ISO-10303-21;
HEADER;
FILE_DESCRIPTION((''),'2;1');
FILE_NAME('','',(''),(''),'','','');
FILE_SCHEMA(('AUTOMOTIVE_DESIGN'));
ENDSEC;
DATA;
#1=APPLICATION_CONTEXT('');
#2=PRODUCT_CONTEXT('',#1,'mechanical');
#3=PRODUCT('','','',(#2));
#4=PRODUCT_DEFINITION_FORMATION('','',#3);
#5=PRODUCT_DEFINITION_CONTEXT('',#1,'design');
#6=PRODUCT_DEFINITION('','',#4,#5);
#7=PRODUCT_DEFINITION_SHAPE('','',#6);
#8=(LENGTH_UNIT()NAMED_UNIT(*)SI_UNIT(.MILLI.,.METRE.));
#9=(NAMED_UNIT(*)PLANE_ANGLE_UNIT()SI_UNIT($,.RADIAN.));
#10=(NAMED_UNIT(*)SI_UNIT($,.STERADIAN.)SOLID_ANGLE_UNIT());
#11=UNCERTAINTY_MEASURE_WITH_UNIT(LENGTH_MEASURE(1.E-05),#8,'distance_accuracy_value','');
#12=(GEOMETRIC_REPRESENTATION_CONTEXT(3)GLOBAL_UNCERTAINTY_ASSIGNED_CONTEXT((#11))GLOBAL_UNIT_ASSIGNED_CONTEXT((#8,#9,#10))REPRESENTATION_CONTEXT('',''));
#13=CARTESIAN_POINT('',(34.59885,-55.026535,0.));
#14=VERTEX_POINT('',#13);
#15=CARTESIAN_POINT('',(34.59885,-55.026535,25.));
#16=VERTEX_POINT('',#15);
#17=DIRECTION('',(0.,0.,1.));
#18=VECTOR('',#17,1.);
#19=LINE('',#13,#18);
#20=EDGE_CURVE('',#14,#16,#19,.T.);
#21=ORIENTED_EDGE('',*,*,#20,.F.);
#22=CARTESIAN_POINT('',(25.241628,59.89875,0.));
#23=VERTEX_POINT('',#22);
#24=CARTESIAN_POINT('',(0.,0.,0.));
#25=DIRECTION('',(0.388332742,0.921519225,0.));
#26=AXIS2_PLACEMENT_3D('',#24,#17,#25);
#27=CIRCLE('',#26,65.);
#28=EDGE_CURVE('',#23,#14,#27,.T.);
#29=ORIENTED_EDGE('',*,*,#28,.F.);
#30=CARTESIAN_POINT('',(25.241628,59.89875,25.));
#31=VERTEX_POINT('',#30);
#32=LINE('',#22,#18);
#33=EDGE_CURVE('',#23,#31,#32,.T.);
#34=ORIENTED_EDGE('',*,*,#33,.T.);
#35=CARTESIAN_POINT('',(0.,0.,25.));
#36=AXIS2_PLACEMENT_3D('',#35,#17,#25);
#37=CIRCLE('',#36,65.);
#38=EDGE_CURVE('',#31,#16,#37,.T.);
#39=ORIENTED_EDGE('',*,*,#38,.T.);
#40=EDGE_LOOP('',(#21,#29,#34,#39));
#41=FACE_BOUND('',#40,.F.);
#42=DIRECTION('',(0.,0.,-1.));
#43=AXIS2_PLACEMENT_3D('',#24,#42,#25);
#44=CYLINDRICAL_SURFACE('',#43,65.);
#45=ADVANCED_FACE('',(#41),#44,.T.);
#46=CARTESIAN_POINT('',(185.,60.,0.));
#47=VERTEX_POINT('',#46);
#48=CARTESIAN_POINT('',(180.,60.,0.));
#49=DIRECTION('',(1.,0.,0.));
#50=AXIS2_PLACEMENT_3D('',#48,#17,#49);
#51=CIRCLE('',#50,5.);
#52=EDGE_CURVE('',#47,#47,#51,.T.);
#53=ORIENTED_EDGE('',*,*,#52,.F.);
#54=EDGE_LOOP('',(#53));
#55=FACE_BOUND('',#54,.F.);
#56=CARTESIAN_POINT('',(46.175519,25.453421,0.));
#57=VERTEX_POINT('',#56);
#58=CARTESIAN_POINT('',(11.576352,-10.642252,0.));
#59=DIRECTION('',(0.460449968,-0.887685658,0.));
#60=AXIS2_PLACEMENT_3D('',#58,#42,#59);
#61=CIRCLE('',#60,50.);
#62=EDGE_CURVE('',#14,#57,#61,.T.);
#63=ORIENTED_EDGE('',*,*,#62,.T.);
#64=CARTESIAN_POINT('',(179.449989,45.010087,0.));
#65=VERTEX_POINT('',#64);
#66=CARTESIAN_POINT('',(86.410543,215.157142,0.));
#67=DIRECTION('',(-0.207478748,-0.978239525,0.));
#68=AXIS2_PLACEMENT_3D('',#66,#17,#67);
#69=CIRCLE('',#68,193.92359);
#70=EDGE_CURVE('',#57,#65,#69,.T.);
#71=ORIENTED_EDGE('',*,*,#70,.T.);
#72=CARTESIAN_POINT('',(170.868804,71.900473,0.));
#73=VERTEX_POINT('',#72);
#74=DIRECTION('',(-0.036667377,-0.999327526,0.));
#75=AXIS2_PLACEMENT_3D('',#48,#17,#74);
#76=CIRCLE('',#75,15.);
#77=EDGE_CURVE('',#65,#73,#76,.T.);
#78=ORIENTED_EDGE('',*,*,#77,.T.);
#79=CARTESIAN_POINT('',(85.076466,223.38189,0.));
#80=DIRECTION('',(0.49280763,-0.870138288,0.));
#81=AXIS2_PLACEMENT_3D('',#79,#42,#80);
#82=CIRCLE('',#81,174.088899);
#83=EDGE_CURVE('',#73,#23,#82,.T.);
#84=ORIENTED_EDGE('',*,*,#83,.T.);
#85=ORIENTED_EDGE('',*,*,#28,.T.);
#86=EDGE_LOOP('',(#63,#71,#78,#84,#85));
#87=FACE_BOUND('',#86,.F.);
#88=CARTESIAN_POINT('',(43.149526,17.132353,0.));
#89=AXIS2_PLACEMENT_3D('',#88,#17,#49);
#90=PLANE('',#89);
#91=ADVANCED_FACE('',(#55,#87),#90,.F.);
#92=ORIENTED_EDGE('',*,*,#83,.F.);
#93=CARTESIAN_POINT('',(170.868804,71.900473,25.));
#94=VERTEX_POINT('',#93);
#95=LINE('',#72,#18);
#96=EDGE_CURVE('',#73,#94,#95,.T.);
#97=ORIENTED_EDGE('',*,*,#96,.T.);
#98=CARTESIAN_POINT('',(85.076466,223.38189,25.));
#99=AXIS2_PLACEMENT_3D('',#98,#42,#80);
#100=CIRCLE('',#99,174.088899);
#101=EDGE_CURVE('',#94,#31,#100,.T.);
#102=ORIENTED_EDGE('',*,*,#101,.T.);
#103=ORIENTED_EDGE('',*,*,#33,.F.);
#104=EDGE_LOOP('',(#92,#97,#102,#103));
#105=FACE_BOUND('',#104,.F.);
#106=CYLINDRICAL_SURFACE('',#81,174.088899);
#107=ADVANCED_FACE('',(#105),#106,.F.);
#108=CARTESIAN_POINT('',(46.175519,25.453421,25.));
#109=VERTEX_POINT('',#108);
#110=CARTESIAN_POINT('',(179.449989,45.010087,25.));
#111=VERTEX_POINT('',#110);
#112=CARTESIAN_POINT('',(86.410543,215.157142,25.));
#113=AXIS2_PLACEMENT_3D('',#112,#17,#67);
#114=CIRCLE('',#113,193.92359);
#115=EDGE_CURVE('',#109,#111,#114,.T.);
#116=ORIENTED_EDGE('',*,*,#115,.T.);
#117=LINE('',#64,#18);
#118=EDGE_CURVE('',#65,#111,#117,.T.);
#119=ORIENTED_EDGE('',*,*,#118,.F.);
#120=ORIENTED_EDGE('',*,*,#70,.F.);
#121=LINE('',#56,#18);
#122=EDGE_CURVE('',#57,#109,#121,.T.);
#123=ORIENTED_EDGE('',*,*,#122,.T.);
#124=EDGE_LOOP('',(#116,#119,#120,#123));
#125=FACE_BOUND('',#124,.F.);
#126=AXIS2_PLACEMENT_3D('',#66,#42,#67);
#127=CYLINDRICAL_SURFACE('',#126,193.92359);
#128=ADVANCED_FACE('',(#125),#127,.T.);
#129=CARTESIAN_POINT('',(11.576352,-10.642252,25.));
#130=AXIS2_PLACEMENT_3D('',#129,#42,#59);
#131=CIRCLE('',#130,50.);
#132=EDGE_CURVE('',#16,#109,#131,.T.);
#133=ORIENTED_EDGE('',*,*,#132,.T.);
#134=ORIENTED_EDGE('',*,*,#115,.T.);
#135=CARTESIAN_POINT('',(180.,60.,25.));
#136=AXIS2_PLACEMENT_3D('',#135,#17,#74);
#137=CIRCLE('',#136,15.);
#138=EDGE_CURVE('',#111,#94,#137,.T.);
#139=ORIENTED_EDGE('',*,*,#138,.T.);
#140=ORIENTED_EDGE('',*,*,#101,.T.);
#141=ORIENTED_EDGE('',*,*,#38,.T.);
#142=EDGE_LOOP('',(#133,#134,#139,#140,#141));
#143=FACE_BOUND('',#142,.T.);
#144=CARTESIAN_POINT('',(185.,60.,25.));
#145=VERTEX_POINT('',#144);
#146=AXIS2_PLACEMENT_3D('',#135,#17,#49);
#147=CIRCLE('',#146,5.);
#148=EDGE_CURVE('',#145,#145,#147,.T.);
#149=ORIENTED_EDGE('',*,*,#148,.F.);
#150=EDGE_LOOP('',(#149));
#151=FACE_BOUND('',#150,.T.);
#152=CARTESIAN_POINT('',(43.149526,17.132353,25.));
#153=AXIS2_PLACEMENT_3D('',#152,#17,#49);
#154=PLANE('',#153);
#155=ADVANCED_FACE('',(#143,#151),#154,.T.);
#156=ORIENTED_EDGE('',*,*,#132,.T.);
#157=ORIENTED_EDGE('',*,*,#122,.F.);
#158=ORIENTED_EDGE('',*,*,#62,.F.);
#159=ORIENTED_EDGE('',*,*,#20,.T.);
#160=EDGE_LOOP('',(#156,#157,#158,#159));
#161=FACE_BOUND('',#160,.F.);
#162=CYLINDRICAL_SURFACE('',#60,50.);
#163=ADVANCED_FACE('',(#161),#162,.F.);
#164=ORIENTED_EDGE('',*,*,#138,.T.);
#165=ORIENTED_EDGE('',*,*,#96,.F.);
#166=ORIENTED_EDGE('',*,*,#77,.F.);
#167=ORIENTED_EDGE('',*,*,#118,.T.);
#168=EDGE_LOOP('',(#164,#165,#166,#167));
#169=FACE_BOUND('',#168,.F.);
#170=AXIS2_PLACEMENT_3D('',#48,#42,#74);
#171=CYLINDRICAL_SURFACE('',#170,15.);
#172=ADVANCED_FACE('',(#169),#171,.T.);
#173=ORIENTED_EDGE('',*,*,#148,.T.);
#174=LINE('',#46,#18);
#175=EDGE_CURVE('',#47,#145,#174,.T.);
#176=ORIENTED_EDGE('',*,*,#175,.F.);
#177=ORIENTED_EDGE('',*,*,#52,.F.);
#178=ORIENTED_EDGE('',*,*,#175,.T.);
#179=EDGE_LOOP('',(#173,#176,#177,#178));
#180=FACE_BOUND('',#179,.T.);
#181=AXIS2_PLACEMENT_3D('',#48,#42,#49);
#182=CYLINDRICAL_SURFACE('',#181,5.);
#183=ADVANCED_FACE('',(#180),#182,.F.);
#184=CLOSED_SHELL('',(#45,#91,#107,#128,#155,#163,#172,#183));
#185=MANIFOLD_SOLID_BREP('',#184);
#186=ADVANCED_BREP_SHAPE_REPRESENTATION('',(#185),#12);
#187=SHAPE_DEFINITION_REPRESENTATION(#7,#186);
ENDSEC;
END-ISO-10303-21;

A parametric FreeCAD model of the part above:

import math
import FreeCAD as App
import Part
import Sketcher
from FreeCAD import Vector

doc = App.newDocument("Part")
body = doc.addObject("PartDesign::Body", "Body")

# Sketch on XY plane
sketch1 = doc.addObject("Sketcher::SketchObject", "Sketch")
body.addObject(sketch1)
sketch1.AttachmentSupport = (doc.XY_Plane, [""])
sketch1.MapMode = "FlatFace"
sketch1.addGeometry(Part.ArcOfCircle(Part.Circle(Vector(85, 223, 0), Vector(0, 0, 1), 174), math.radians(-110), math.radians(-60)), False)
sketch1.addGeometry(Part.ArcOfCircle(Part.Circle(Vector(0, 0, 0), Vector(0, 0, 1), 65), math.radians(67), math.radians(302)), False)
sketch1.addGeometry(Part.ArcOfCircle(Part.Circle(Vector(12, -11, 0), Vector(0, 0, 1), 50), math.radians(46), math.radians(297)), False)
sketch1.addGeometry(Part.ArcOfCircle(Part.Circle(Vector(86, 215, 0), Vector(0, 0, 1), 194), math.radians(-102), math.radians(-61)), False)
sketch1.addGeometry(Part.ArcOfCircle(Part.Circle(Vector(180, 60, 0), Vector(0, 0, 1), 15), math.radians(-92), math.radians(127)), False)
sketch1.addGeometry(Part.Circle(Vector(180, 60, 0), Vector(0, 0, 1), 5), False)
sketch1.addConstraint(Sketcher.Constraint("Coincident", 0, 1, 1, 1))
sketch1.addConstraint(Sketcher.Constraint("Coincident", 1, 2, 2, 2))
sketch1.addConstraint(Sketcher.Constraint("Coincident", 2, 1, 3, 1))
sketch1.addConstraint(Sketcher.Constraint("Coincident", 3, 2, 4, 1))
sketch1.addConstraint(Sketcher.Constraint("Coincident", 4, 2, 0, 2))
sketch1.addConstraint(Sketcher.Constraint("Coincident", 1, 3, -1, 1))
sketch1.addConstraint(Sketcher.Constraint("Coincident", 5, 3, 4, 3))
sketch1.addConstraint(Sketcher.Constraint("Diameter", 5, 10.0))
sketch1.addConstraint(Sketcher.Constraint("Radius", 1, 65.0))
sketch1.addConstraint(Sketcher.Constraint("Radius", 2, 50.0))
sketch1.addConstraint(Sketcher.Constraint("Radius", 4, 15.0))
sketch1.addConstraint(Sketcher.Constraint("DistanceX", -1, 1, 4, 3, 180.0))
sketch1.addConstraint(Sketcher.Constraint("DistanceY", -1, 1, 4, 3, 60.0))
sketch1.addConstraint(Sketcher.Constraint("Radius", 0, 174.088899))
sketch1.addConstraint(Sketcher.Constraint("Radius", 3, 193.92359))
sketch1.addConstraint(Sketcher.Constraint("DistanceX", 2, 3, 1, 2, 23.022498))
sketch1.addConstraint(Sketcher.Constraint("DistanceY", -1, 1, 0, 3, 223.38189))
sketch1.addConstraint(Sketcher.Constraint("DistanceX", -1, 1, 2, 3, 11.576352))
sketch1.addConstraint(Sketcher.Constraint("DistanceY", -1, 1, 3, 3, 215.157142))
sketch1.addConstraint(Sketcher.Constraint("DistanceX", -1, 1, 0, 1, 25.241628))
sketch1.addConstraint(Sketcher.Constraint("DistanceX", -1, 1, 2, 1, 46.175519))
pad1 = doc.addObject("PartDesign::Pad", "Pad")
body.addObject(pad1)
pad1.Profile = sketch1
pad1.Length = 25

doc.recompute()
